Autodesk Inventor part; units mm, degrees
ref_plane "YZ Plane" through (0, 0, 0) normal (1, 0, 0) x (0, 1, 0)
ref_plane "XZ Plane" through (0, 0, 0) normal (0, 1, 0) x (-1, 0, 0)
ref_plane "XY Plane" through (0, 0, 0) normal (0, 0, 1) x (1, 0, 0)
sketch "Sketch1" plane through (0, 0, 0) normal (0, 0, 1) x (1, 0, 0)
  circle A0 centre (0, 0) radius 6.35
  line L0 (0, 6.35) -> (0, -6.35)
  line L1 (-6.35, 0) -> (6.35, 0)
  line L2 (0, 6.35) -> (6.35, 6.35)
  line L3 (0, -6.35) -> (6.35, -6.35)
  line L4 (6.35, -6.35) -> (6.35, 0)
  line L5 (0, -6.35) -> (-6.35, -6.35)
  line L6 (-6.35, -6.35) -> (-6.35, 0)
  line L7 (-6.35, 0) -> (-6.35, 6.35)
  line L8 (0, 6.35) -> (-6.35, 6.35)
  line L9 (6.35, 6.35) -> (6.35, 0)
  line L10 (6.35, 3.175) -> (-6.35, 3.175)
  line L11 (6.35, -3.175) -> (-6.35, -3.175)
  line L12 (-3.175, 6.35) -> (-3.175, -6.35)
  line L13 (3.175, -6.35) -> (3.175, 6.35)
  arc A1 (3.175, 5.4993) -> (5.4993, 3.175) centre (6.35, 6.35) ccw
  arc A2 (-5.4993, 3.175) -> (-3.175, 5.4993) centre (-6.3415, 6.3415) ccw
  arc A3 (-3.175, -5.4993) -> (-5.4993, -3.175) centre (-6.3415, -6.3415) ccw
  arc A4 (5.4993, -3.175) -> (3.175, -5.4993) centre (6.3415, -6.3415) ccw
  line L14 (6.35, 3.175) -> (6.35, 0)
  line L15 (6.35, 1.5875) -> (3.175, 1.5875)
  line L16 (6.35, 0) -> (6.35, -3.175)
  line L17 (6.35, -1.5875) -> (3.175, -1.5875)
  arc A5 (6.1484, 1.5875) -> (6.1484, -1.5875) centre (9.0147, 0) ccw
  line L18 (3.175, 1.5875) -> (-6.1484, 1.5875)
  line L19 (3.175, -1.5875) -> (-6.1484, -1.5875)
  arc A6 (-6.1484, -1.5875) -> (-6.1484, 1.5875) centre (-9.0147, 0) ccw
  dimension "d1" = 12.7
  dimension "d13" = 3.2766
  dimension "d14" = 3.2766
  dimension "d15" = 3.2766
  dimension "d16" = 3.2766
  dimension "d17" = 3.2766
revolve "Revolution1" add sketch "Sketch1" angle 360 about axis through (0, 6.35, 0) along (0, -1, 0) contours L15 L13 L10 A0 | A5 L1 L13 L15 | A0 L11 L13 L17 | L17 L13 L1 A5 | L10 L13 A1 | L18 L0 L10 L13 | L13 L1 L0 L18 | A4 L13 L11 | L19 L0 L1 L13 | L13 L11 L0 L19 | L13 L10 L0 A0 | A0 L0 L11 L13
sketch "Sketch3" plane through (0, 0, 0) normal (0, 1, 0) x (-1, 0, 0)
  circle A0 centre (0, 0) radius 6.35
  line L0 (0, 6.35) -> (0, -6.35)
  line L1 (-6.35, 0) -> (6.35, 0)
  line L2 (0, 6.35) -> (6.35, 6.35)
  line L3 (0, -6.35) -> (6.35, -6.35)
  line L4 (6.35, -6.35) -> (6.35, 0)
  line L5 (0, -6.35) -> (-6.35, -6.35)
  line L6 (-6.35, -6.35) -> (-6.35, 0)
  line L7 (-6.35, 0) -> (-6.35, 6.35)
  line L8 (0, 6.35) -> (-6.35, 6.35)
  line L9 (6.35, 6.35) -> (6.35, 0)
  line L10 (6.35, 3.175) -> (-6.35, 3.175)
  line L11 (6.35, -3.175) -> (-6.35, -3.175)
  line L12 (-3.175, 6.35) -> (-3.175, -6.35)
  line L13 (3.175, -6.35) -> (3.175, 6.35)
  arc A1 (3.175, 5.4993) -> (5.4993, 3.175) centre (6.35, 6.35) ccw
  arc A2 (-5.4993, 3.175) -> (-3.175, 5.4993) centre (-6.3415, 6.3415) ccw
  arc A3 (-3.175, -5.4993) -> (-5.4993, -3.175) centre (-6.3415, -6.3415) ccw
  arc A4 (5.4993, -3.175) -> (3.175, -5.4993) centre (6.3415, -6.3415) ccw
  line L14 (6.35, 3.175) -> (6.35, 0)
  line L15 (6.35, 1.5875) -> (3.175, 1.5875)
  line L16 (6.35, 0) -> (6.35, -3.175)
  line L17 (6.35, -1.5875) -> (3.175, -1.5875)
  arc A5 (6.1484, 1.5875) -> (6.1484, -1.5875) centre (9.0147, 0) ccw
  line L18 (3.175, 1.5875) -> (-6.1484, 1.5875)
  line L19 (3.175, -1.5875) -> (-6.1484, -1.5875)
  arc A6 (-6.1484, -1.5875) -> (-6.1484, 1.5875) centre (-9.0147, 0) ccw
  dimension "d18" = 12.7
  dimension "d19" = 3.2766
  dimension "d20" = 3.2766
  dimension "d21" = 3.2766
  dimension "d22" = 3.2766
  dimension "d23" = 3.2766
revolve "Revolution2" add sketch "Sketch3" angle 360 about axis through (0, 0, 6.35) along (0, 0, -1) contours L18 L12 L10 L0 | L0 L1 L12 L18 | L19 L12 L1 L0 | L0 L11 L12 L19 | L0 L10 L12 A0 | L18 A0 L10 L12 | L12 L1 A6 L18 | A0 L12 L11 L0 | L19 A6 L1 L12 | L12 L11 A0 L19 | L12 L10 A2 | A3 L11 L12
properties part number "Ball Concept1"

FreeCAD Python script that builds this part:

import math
import FreeCAD as App
import Part
import Sketcher
Q = App.Units.Quantity

doc = App.newDocument("Part")
params = doc.addObject("Spreadsheet::Sheet", "Params")
for row, (alias, value) in enumerate([
    ("sketch1_radius", "0.25 in"),
    ("sketch1_radius2", "0.129 in"),
    ("revolution_angle", "360 deg"),
    ("sketch2_radius", "0.25 in"),
    ("sketch2_radius2", "0.129 in"),
    ("revolution2_angle", "360 deg"),
], start=1):
    params.set(f"A{row}", alias)
    params.set(f"B{row}", "=" + value)
    params.setAlias(f"B{row}", alias)

body = doc.addObject("PartDesign::Body", "Body")

# Sketch on XY plane
sketch1 = body.newObject("Sketcher::SketchObject", "Sketch")
sketch1.AttachmentSupport = (doc.getObject("XY_Plane"), [""])
sketch1.MapMode = "FlatFace"
sketch1.addGeometry([
    Part.ArcOfCircle(Part.Circle(App.Vector(0, 0, 0), App.Vector(0, 0, 1), 6.3), math.radians(14.48), math.radians(30)),  # 0
    Part.ArcOfCircle(Part.Circle(App.Vector(6.3, 6.3, 0), App.Vector(0, 0, 1), 3.3), math.radians(-165), math.radians(-105)),  # 1
    Part.ArcOfCircle(Part.Circle(App.Vector(0, 0, 0), App.Vector(0, 0, 1), 6.3), math.radians(60), math.radians(90)),  # 2
    Part.LineSegment(App.Vector(0, 6.3, 0), App.Vector(0, -6.3, 0)),  # 3
    Part.ArcOfCircle(Part.Circle(App.Vector(0, 0, 0), App.Vector(0, 0, 1), 6.3), math.radians(-90), math.radians(-60)),  # 4
    Part.ArcOfCircle(Part.Circle(App.Vector(6.3, -6.3, 0), App.Vector(0, 0, 1), 3.3), math.radians(105), math.radians(165)),  # 5
    Part.ArcOfCircle(Part.Circle(App.Vector(0, 0, 0), App.Vector(0, 0, 1), 6.3), math.radians(-30), math.radians(-14.48)),  # 6
    Part.ArcOfCircle(Part.Circle(App.Vector(9, 0, 0), App.Vector(0, 0, 1), 3.3), math.radians(151), math.radians(209)),  # 7
], False)
sketch1.addConstraint([
    Sketcher.Constraint("Coincident", 0, 2, 1, 2),
    Sketcher.Constraint("Coincident", 1, 1, 2, 1),
    Sketcher.Constraint("Coincident", 2, 2, 3, 1),
    Sketcher.Constraint("Coincident", 3, 2, 4, 1),
    Sketcher.Constraint("Coincident", 4, 2, 5, 2),
    Sketcher.Constraint("Coincident", 5, 1, 6, 1),
    Sketcher.Constraint("Coincident", 6, 2, 7, 2),
    Sketcher.Constraint("Coincident", 7, 1, 0, 1),
    Sketcher.Constraint("Vertical", 3),
    Sketcher.Constraint("Coincident", 0, 3, -1, 1),
    Sketcher.Constraint("Coincident", 2, 3, -1, 1),
    Sketcher.Constraint("Coincident", 4, 3, -1, 1),
    Sketcher.Constraint("Coincident", 6, 3, -1, 1),
    Sketcher.Constraint("Equal", 0, 2),
    Sketcher.Constraint("Equal", 2, 4),
    Sketcher.Constraint("Equal", 4, 6),
    Sketcher.Constraint("Equal", 5, 7),
    Sketcher.Constraint("PointOnObject", 7, 3, -1),
    Sketcher.Constraint("PointOnObject", 2, 2, -2),
    Sketcher.Constraint("Horizontal", 1, 3, 2, 2),
    Sketcher.Constraint("Vertical", 1, 1, 4, 2),
    Sketcher.Constraint("Vertical", 0, 2, 5, 1),
    Sketcher.Constraint("Radius", 0, Q("0.25 in")),
    Sketcher.Constraint("Radius", 5, Q("0.129 in")),
    Sketcher.Constraint("Radius", 1, Q("0.1294 in")),
    Sketcher.Constraint("DistanceX", -1, 1, 1, 3, Q("0.25 in")),
    Sketcher.Constraint("DistanceY", 6, 2, -1, 1, Q("0.0625 in")),
])
sketch1.setExpression("Constraints[22]", "Params.sketch1_radius")
sketch1.setExpression("Constraints[23]", "Params.sketch1_radius2")
revolution = body.newObject("PartDesign::Revolution", "Revolution")
revolution.Profile = sketch1
revolution.ReferenceAxis = (sketch1, ["V_Axis"])
revolution.setExpression("Angle", "Params.revolution_angle")

# Sketch on XZ plane
sketch2 = body.newObject("Sketcher::SketchObject", "Sketch001")
sketch2.AttachmentSupport = (doc.getObject("XZ_Plane"), [""])
sketch2.MapMode = "FlatFace"
sketch2.addGeometry([
    Part.ArcOfCircle(Part.Circle(App.Vector(0, 0, 0), App.Vector(0, 0, 1), 6.3), math.radians(60), math.radians(90)),  # 0
    Part.ArcOfCircle(Part.Circle(App.Vector(6.3, 6.3, 0), App.Vector(0, 0, 1), 3.3), math.radians(-165), math.radians(-105)),  # 1
    Part.ArcOfCircle(Part.Circle(App.Vector(0, 0, 0), App.Vector(0, 0, 1), 6.3), math.radians(14.48), math.radians(30)),  # 2
    Part.ArcOfCircle(Part.Circle(App.Vector(9, 0, 0), App.Vector(0, 0, 1), 3.3), math.radians(151), math.radians(209)),  # 3
    Part.ArcOfCircle(Part.Circle(App.Vector(0, 0, 0), App.Vector(0, 0, 1), 6.3), math.radians(-30), math.radians(-14.48)),  # 4
    Part.ArcOfCircle(Part.Circle(App.Vector(6.3, -6.3, 0), App.Vector(0, 0, 1), 3.3), math.radians(105), math.radians(165)),  # 5
    Part.ArcOfCircle(Part.Circle(App.Vector(0, 0, 0), App.Vector(0, 0, 1), 6.3), math.radians(-90), math.radians(-60)),  # 6
    Part.LineSegment(App.Vector(0, -6.3, 0), App.Vector(0, 6.3, 0)),  # 7
], False)
sketch2.addConstraint([
    Sketcher.Constraint("Coincident", 0, 1, 1, 1),
    Sketcher.Constraint("Coincident", 1, 2, 2, 2),
    Sketcher.Constraint("Coincident", 2, 1, 3, 1),
    Sketcher.Constraint("Coincident", 3, 2, 4, 2),
    Sketcher.Constraint("Coincident", 4, 1, 5, 1),
    Sketcher.Constraint("Coincident", 5, 2, 6, 2),
    Sketcher.Constraint("Coincident", 6, 1, 7, 1),
    Sketcher.Constraint("Coincident", 7, 2, 0, 2),
    Sketcher.Constraint("Vertical", 7),
    Sketcher.Constraint("Coincident", 0, 3, -1, 1),
    Sketcher.Constraint("Coincident", 2, 3, -1, 1),
    Sketcher.Constraint("Coincident", 4, 3, -1, 1),
    Sketcher.Constraint("Coincident", 6, 3, -1, 1),
    Sketcher.Constraint("Equal", 0, 2),
    Sketcher.Constraint("Equal", 1, 3),
    Sketcher.Constraint("Equal", 2, 4),
    Sketcher.Constraint("Equal", 3, 5),
    Sketcher.Constraint("Equal", 4, 6),
    Sketcher.Constraint("Symmetric", 1, 3, 5, 3, -1),
    Sketcher.Constraint("PointOnObject", 3, 3, -1),
    Sketcher.Constraint("PointOnObject", 6, 1, -2),
    Sketcher.Constraint("Radius", 0, Q("0.25 in")),
    Sketcher.Constraint("Radius", 1, Q("0.129 in")),
    Sketcher.Constraint("DistanceY", 4, 1, 1, 2, Q("0.25 in")),
    Sketcher.Constraint("DistanceX", -1, 1, 0, 1, Q("0.125 in")),
    Sketcher.Constraint("DistanceY", -1, 1, 2, 1, Q("0.0625 in")),
])
sketch2.setExpression("Constraints[21]", "Params.sketch2_radius")
sketch2.setExpression("Constraints[22]", "Params.sketch2_radius2")
revolution2 = body.newObject("PartDesign::Revolution", "Revolution001")
revolution2.Profile = sketch2
revolution2.ReferenceAxis = (sketch2, ["V_Axis"])
revolution2.setExpression("Angle", "Params.revolution2_angle")

doc.recompute()
